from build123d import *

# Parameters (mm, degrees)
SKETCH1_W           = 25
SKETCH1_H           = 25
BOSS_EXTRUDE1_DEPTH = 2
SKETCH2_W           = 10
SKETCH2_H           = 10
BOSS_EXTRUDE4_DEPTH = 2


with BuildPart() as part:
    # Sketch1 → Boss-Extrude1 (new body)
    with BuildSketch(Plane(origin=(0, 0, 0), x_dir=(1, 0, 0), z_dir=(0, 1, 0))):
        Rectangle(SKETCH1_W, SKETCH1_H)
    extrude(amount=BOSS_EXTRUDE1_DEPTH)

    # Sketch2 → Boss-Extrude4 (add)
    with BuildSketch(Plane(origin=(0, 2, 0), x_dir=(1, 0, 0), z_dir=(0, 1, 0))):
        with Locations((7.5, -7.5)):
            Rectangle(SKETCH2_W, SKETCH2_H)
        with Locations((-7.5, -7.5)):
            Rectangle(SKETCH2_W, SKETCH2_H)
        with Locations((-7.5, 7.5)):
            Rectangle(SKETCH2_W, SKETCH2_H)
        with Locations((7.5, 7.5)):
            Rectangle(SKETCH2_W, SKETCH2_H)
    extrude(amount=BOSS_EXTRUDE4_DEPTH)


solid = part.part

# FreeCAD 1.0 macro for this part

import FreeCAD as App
import Part
import Sketcher


def add_polygon(sketch, points):
    """Adds a closed chain of lines whose ends are joined by coincident constraints."""
    first, n = sketch.GeometryCount, len(points)
    for a, b in zip(points, points[1:] + points[:1]):
        sketch.addGeometry(Part.LineSegment(App.Vector(*a, 0), App.Vector(*b, 0)), False)
    for i in range(n):
        sketch.addConstraint(Sketcher.Constraint("Coincident", first + i, 2, first + (i + 1) % n, 1))

doc = App.newDocument("Part")
params = doc.addObject("Spreadsheet::Sheet", "Params")
for row, (alias, value) in enumerate([
    ("sketch1_width", "25 mm"),
    ("pad1_length", "2 mm"),
    ("sketch2_width", "10 mm"),
    ("pad2_length", "2 mm"),
], start=1):
    params.set(f"A{row}", alias)
    params.set(f"B{row}", "=" + value)
    params.setAlias(f"B{row}", alias)

body = doc.addObject("PartDesign::Body", "Body")

# Sketch on XZ plane
sketch1 = body.newObject("Sketcher::SketchObject", "Sketch")
sketch1.AttachmentSupport = (doc.getObject("XZ_Plane"), [""])
sketch1.MapMode = "FlatFace"
add_polygon(sketch1, [(-12.5, -12.5), (-12.5, 12.5), (12.5, 12.5), (12.5, -12.5)])  # lines 0-3
sketch1.addConstraint([
    Sketcher.Constraint("Vertical", 0),
    Sketcher.Constraint("Horizontal", 1),
    Sketcher.Constraint("Vertical", 2),
    Sketcher.Constraint("Horizontal", 3),
    Sketcher.Constraint("Symmetric", 0, 2, 2, 2, -1, 1),
    Sketcher.Constraint("Equal", 3, 0),
    Sketcher.Constraint("DistanceX", 1, 1, 1, 2, 25.0),
])
sketch1.setExpression("Constraints[10]", "Params.sketch1_width")
pad1 = body.newObject("PartDesign::Pad", "Pad")
pad1.Profile = sketch1
pad1.setExpression("Length", "Params.pad1_length")
pad1.Reversed = True

# Sketch on XZ plane
sketch2 = body.newObject("Sketcher::SketchObject", "Sketch001")
sketch2.AttachmentSupport = (doc.getObject("XZ_Plane"), [""])
sketch2.MapMode = "FlatFace"
sketch2.AttachmentOffset = App.Placement(App.Vector(0, 0, -2), App.Rotation())
add_polygon(sketch2, [(2.5, 2.5), (2.5, 12.5), (12.5, 12.5), (12.5, 2.5)])  # lines 0-3
add_polygon(sketch2, [(-12.5, 2.5), (-12.5, 12.5), (-2.5, 12.5), (-2.5, 2.5)])  # lines 4-7
add_polygon(sketch2, [(-12.5, -12.5), (-12.5, -2.5), (-2.5, -2.5), (-2.5, -12.5)])  # lines 8-11
add_polygon(sketch2, [(2.5, -12.5), (2.5, -2.5), (12.5, -2.5), (12.5, -12.5)])  # lines 12-15
sketch2.addConstraint([
    Sketcher.Constraint("Vertical", 0),
    Sketcher.Constraint("Horizontal", 1),
    Sketcher.Constraint("Vertical", 2),
    Sketcher.Constraint("Horizontal", 3),
    Sketcher.Constraint("Vertical", 4),
    Sketcher.Constraint("Horizontal", 5),
    Sketcher.Constraint("Vertical", 6),
    Sketcher.Constraint("Horizontal", 7),
    Sketcher.Constraint("Vertical", 8),
    Sketcher.Constraint("Horizontal", 9),
    Sketcher.Constraint("Vertical", 10),
    Sketcher.Constraint("Horizontal", 11),
    Sketcher.Constraint("Vertical", 12),
    Sketcher.Constraint("Horizontal", 13),
    Sketcher.Constraint("Vertical", 14),
    Sketcher.Constraint("Horizontal", 15),
    Sketcher.Constraint("Symmetric", 2, 2, 8, 2, -1, 1),
    Sketcher.Constraint("Symmetric", 0, 2, 10, 2, -1, 1),
    Sketcher.Constraint("Symmetric", 6, 2, 12, 2, -1, 1),
    Sketcher.Constraint("Symmetric", 4, 2, 14, 2, -1, 1),
    Sketcher.Constraint("Symmetric", 1, 2, 4, 2, -2),
    Sketcher.Constraint("Symmetric", 3, 2, 6, 2, -2),
    Sketcher.Constraint("Equal", 15, 0),
    Sketcher.Constraint("DistanceX", 1, 1, 1, 2, 10.0),
    Sketcher.Constraint("DistanceX", 4, 2, 0, 2, 15.0),
    Sketcher.Constraint("DistanceY", 8, 2, 7, 2, 5.0),
])
sketch2.setExpression("Constraints[39]", "Params.sketch2_width")
pad2 = body.newObject("PartDesign::Pad", "Pad001")
pad2.Profile = sketch2
pad2.setExpression("Length", "Params.pad2_length")
pad2.Reversed = True

doc.recompute()
